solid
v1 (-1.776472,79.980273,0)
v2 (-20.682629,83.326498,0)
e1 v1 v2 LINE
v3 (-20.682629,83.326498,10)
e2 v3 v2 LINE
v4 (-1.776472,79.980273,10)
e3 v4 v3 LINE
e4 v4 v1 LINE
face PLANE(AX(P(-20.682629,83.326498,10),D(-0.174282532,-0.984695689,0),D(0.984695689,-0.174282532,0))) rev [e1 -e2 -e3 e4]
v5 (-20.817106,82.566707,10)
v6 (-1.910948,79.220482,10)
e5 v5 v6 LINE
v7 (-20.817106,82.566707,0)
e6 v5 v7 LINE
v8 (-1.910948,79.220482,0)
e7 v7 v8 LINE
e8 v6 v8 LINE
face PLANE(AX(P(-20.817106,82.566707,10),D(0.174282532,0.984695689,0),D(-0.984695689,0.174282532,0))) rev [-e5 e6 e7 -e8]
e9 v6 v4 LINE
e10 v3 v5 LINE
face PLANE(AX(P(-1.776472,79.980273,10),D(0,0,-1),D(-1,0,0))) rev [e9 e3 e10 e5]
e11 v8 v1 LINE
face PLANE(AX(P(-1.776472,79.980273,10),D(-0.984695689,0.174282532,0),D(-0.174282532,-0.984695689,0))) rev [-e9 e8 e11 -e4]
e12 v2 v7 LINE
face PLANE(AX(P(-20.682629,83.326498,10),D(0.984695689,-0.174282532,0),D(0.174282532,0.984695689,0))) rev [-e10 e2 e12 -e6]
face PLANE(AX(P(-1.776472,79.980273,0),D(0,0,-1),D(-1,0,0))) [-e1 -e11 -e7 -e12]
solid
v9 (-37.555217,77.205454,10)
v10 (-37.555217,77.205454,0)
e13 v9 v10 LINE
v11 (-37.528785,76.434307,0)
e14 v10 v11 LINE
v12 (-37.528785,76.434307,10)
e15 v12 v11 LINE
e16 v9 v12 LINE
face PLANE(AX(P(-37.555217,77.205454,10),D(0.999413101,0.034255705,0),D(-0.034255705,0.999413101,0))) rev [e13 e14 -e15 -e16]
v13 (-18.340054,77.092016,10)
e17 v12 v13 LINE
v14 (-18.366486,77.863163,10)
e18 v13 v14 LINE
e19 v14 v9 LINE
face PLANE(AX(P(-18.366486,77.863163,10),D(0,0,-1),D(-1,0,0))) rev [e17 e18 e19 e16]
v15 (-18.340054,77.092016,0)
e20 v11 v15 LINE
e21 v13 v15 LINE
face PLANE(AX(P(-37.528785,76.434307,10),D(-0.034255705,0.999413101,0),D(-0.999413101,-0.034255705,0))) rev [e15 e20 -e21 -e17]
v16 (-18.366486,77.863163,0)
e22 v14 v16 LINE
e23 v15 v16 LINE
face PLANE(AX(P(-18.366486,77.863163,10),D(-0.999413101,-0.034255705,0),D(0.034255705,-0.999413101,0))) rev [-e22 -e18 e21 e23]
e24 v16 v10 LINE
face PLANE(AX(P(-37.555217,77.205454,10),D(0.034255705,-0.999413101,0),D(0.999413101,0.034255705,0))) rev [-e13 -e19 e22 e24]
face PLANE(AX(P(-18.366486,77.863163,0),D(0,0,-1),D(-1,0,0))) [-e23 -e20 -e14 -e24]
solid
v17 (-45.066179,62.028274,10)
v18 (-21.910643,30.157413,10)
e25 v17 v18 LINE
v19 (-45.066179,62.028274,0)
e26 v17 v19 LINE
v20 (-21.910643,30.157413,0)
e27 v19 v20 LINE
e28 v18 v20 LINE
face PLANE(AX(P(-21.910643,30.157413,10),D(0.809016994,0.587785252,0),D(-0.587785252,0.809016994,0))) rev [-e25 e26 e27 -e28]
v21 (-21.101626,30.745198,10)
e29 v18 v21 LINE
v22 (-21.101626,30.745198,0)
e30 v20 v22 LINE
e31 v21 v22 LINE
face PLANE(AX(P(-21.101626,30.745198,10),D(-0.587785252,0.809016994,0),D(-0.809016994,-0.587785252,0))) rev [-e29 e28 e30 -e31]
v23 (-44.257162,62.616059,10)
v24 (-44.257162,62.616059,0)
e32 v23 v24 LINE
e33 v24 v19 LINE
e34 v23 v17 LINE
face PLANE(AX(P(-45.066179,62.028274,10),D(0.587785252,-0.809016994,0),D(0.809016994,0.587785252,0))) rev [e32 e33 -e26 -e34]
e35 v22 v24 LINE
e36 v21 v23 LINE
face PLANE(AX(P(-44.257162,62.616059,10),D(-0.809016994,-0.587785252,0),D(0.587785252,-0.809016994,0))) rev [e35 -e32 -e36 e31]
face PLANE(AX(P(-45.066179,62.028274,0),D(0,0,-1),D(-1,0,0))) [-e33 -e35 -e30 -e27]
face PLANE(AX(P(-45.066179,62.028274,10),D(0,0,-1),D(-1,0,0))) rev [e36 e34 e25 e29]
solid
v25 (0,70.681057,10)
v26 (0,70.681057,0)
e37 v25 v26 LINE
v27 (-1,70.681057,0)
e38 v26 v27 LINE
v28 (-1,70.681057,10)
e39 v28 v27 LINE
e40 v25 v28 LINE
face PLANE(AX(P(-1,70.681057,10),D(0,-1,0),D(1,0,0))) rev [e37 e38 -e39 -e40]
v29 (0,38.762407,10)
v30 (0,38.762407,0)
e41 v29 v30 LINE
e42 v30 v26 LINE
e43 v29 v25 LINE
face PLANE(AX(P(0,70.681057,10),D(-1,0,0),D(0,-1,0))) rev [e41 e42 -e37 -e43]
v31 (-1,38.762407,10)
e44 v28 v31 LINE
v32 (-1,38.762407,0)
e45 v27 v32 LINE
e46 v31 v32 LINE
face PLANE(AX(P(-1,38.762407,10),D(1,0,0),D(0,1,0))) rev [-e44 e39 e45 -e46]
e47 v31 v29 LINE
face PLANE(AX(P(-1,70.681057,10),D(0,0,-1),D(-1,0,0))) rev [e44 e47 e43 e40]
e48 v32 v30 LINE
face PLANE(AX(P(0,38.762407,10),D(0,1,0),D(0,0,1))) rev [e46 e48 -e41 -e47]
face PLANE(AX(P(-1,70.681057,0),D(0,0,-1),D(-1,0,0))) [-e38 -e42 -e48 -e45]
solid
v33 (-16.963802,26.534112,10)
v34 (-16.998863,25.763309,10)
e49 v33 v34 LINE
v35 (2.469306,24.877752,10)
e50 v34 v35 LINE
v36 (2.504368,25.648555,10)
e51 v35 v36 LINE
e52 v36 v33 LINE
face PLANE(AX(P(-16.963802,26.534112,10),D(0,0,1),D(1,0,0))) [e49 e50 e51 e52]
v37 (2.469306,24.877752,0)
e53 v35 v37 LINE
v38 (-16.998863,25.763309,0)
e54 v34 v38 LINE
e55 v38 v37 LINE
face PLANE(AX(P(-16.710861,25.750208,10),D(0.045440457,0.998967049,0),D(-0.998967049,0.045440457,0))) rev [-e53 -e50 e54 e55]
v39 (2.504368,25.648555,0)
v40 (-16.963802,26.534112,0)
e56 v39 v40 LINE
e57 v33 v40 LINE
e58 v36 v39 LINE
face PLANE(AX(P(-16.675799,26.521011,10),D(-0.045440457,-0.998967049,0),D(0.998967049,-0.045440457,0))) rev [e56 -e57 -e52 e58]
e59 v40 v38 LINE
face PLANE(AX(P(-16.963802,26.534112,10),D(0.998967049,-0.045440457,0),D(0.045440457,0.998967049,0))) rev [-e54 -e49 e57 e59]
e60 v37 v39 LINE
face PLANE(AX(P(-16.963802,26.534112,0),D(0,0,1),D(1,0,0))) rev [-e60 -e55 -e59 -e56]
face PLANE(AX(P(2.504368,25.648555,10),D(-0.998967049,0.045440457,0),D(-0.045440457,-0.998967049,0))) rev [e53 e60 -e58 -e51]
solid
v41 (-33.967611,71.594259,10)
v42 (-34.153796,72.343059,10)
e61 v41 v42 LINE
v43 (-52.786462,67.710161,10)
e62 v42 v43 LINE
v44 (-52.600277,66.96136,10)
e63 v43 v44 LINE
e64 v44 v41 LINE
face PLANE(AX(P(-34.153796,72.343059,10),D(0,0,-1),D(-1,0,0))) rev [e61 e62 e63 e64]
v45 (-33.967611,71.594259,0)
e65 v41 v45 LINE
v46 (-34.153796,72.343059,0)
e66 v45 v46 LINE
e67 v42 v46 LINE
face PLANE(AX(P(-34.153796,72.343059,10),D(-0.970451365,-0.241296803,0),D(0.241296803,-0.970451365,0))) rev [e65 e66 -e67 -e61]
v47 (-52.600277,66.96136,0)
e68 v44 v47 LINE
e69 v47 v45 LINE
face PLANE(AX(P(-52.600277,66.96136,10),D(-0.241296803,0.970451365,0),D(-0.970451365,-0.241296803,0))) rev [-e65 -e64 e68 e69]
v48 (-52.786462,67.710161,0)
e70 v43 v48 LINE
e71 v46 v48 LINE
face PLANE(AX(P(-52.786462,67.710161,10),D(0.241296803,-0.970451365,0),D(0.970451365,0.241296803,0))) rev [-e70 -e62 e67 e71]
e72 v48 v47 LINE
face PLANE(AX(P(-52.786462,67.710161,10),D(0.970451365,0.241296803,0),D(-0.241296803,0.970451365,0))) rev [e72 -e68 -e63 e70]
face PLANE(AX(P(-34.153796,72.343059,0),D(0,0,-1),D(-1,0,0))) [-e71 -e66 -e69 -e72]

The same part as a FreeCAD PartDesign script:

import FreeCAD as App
import Part
import Sketcher
Q = App.Units.Quantity


def add_polygon(sketch, points):
    """Adds a closed chain of lines whose ends are joined by coincident constraints."""
    first, n = sketch.GeometryCount, len(points)
    for a, b in zip(points, points[1:] + points[:1]):
        sketch.addGeometry(Part.LineSegment(App.Vector(*a, 0), App.Vector(*b, 0)), False)
    for i in range(n):
        sketch.addConstraint(Sketcher.Constraint("Coincident", first + i, 2, first + (i + 1) % n, 1))

doc = App.newDocument("Part")
body = doc.addObject("PartDesign::Body", "Body")

sketch1 = doc.addObject("Sketcher::SketchObject", "Sketch")
body.addObject(sketch1)
sketch1.AttachmentSupport = (doc.XY_Plane, [""])
sketch1.MapMode = "FlatFace"
add_polygon(sketch1, [(-34, 71.6), (-34.2, 72.3), (-52.8, 67.7), (-52.6, 67)])
sketch1.addConstraint(Sketcher.Constraint("Perpendicular", 0, 1))
sketch1.addConstraint(Sketcher.Constraint("Perpendicular", 1, 2))
sketch1.addConstraint(Sketcher.Constraint("Perpendicular", 2, 3))
sketch1.addConstraint(Sketcher.Constraint("Distance", 1, Q("19.2 mm")))
sketch1.addConstraint(Sketcher.Constraint("Distance", 0, Q("0.7716 mm")))
sketch1.addConstraint(Sketcher.Constraint("DistanceY", 1, 2, 0, 2, Q("4.632899 mm")))
sketch1.addConstraint(Sketcher.Constraint("DistanceY", -1, 1, 0, 2, Q("72.343059 mm")))
sketch1.addConstraint(Sketcher.Constraint("DistanceX", 3, 2, -1, 1, Q("33.967611 mm")))
pad1 = doc.addObject("PartDesign::Pad", "Pad")
body.addObject(pad1)
pad1.Profile = sketch1
pad1.Length = 10
body2 = doc.addObject("PartDesign::Body", "Body001")

sketch2 = doc.addObject("Sketcher::SketchObject", "Sketch001")
body2.addObject(sketch2)
sketch2.AttachmentSupport = (doc.getObject("XY_Plane001"), [""])
sketch2.MapMode = "FlatFace"
add_polygon(sketch2, [(-18.3, 77.1), (-18.4, 77.9), (-37.6, 77.2), (-37.5, 76.4)])
sketch2.addConstraint(Sketcher.Constraint("Perpendicular", 0, 1))
sketch2.addConstraint(Sketcher.Constraint("Perpendicular", 1, 2))
sketch2.addConstraint(Sketcher.Constraint("Perpendicular", 2, 3))
sketch2.addConstraint(Sketcher.Constraint("Distance", 1, Q("19.2 mm")))
sketch2.addConstraint(Sketcher.Constraint("Distance", 0, Q("0.7716 mm")))
sketch2.addConstraint(Sketcher.Constraint("DistanceX", 2, 2, 0, 2, Q("19.1623 mm")))
sketch2.addConstraint(Sketcher.Constraint("DistanceX", 0, 2, -1, 1, Q("18.366486 mm")))
sketch2.addConstraint(Sketcher.Constraint("DistanceY", -1, 1, 0, 2, Q("77.863163 mm")))
pad2 = doc.addObject("PartDesign::Pad", "Pad001")
body2.addObject(pad2)
pad2.Profile = sketch2
pad2.Length = 10
body3 = doc.addObject("PartDesign::Body", "Body002")

sketch3 = doc.addObject("Sketcher::SketchObject", "Sketch002")
body3.addObject(sketch3)
sketch3.AttachmentSupport = (doc.getObject("XY_Plane002"), [""])
sketch3.MapMode = "FlatFace"
add_polygon(sketch3, [(-1.9, 79.2), (-1.8, 80), (-20.7, 83.3), (-20.8, 82.6)])
sketch3.addConstraint(Sketcher.Constraint("Perpendicular", 0, 1))
sketch3.addConstraint(Sketcher.Constraint("Perpendicular", 1, 2))
sketch3.addConstraint(Sketcher.Constraint("Perpendicular", 2, 3))
sketch3.addConstraint(Sketcher.Constraint("Distance", 1, Q("19.2 mm")))
sketch3.addConstraint(Sketcher.Constraint("Distance", 0, Q("0.7716 mm")))
sketch3.addConstraint(Sketcher.Constraint("DistanceY", -1, 1, 1, 2, Q("83.326498 mm")))
sketch3.addConstraint(Sketcher.Constraint("DistanceX", 0, 2, -1, 1, Q("1.776472 mm")))
sketch3.addConstraint(Sketcher.Constraint("DistanceX", 1, 2, -1, 1, Q("20.682629 mm")))
pad3 = doc.addObject("PartDesign::Pad", "Pad002")
body3.addObject(pad3)
pad3.Profile = sketch3
pad3.Length = 10
body4 = doc.addObject("PartDesign::Body", "Body003")

sketch4 = doc.addObject("Sketcher::SketchObject", "Sketch003")
body4.addObject(sketch4)
sketch4.AttachmentSupport = (doc.getObject("XY_Plane003"), [""])
sketch4.MapMode = "FlatFace"
add_polygon(sketch4, [(-16.710861, 25.750208), (2.469306, 24.877752), (2.504368, 25.648555), (-16.675799, 26.521011), (-16.963802, 26.534112), (-16.998863, 25.763309)])
sketch4.addConstraint(Sketcher.Constraint("Perpendicular", 0, 1))
sketch4.addConstraint(Sketcher.Constraint("Perpendicular", 1, 2))
sketch4.addConstraint(Sketcher.Constraint("Parallel", 2, 3))
sketch4.addConstraint(Sketcher.Constraint("Perpendicular", 3, 4))
sketch4.addConstraint(Sketcher.Constraint("Perpendicular", 4, 5))
sketch4.addConstraint(Sketcher.Constraint("Equal", 0, 2))
sketch4.addConstraint(Sketcher.Constraint("Distance", 0, Q("19.2 mm")))
sketch4.addConstraint(Sketcher.Constraint("Distance", 1, Q("0.7716 mm")))
sketch4.addConstraint(Sketcher.Constraint("Distance", 3, Q("0.2883 mm")))
sketch4.addConstraint(Sketcher.Constraint("DistanceX", 2, 2, -1, 1, Q("16.675799 mm")))
sketch4.addConstraint(Sketcher.Constraint("DistanceY", 2, 2, 3, 2, Q("0.0131 mm")))
sketch4.addConstraint(Sketcher.Constraint("DistanceY", -1, 1, 0, 2, Q("24.877752 mm")))
pad4 = doc.addObject("PartDesign::Pad", "Pad003")
body4.addObject(pad4)
pad4.Profile = sketch4
pad4.Length = 10
body5 = doc.addObject("PartDesign::Body", "Body004")

sketch5 = doc.addObject("Sketcher::SketchObject", "Sketch004")
body5.addObject(sketch5)
sketch5.AttachmentSupport = (doc.getObject("XY_Plane004"), [""])
sketch5.MapMode = "FlatFace"
add_polygon(sketch5, [(-44.3, 62.6), (-45.1, 62), (-21.9, 30.2), (-21.1, 30.7)])
sketch5.addConstraint(Sketcher.Constraint("Perpendicular", 0, 1))
sketch5.addConstraint(Sketcher.Constraint("Perpendicular", 1, 2))
sketch5.addConstraint(Sketcher.Constraint("Perpendicular", 2, 3))
sketch5.addConstraint(Sketcher.Constraint("Angle", 0, Q("-144 deg")))
sketch5.addConstraint(Sketcher.Constraint("Distance", 0, Q("1 mm")))
sketch5.addConstraint(Sketcher.Constraint("Distance", 1, Q("39.394551 mm")))
sketch5.addConstraint(Sketcher.Constraint("DistanceX", 0, 2, -1, 1, Q("45.066179 mm")))
sketch5.addConstraint(Sketcher.Constraint("DistanceY", -1, 1, 3, 2, Q("62.616059 mm")))
pad5 = doc.addObject("PartDesign::Pad", "Pad004")
body5.addObject(pad5)
pad5.Profile = sketch5
pad5.Length = 10
body6 = doc.addObject("PartDesign::Body", "Body005")

sketch6 = doc.addObject("Sketcher::SketchObject", "Sketch005")
body6.addObject(sketch6)
sketch6.AttachmentSupport = (doc.getObject("XY_Plane005"), [""])
sketch6.MapMode = "FlatFace"
add_polygon(sketch6, [(-1, 70.7), (-1, 38.8), (0, 38.8), (0, 70.7)])
sketch6.addConstraint(Sketcher.Constraint("Vertical", 0))
sketch6.addConstraint(Sketcher.Constraint("Horizontal", 1))
sketch6.addConstraint(Sketcher.Constraint("Vertical", 2))
sketch6.addConstraint(Sketcher.Constraint("Horizontal", 3))
sketch6.addConstraint(Sketcher.Constraint("PointOnObject", 1, 2, -2))
sketch6.addConstraint(Sketcher.Constraint("DistanceX", 1, 1, 1, 2, Q("1 mm")))
sketch6.addConstraint(Sketcher.Constraint("DistanceY", 0, 2, 0, 1, Q("31.91865 mm")))
sketch6.addConstraint(Sketcher.Constraint("DistanceY", -1, 1, 0, 2, Q("38.762407 mm")))
pad6 = doc.addObject("PartDesign::Pad", "Pad005")
body6.addObject(pad6)
pad6.Profile = sketch6
pad6.Length = 10

doc.recompute()
